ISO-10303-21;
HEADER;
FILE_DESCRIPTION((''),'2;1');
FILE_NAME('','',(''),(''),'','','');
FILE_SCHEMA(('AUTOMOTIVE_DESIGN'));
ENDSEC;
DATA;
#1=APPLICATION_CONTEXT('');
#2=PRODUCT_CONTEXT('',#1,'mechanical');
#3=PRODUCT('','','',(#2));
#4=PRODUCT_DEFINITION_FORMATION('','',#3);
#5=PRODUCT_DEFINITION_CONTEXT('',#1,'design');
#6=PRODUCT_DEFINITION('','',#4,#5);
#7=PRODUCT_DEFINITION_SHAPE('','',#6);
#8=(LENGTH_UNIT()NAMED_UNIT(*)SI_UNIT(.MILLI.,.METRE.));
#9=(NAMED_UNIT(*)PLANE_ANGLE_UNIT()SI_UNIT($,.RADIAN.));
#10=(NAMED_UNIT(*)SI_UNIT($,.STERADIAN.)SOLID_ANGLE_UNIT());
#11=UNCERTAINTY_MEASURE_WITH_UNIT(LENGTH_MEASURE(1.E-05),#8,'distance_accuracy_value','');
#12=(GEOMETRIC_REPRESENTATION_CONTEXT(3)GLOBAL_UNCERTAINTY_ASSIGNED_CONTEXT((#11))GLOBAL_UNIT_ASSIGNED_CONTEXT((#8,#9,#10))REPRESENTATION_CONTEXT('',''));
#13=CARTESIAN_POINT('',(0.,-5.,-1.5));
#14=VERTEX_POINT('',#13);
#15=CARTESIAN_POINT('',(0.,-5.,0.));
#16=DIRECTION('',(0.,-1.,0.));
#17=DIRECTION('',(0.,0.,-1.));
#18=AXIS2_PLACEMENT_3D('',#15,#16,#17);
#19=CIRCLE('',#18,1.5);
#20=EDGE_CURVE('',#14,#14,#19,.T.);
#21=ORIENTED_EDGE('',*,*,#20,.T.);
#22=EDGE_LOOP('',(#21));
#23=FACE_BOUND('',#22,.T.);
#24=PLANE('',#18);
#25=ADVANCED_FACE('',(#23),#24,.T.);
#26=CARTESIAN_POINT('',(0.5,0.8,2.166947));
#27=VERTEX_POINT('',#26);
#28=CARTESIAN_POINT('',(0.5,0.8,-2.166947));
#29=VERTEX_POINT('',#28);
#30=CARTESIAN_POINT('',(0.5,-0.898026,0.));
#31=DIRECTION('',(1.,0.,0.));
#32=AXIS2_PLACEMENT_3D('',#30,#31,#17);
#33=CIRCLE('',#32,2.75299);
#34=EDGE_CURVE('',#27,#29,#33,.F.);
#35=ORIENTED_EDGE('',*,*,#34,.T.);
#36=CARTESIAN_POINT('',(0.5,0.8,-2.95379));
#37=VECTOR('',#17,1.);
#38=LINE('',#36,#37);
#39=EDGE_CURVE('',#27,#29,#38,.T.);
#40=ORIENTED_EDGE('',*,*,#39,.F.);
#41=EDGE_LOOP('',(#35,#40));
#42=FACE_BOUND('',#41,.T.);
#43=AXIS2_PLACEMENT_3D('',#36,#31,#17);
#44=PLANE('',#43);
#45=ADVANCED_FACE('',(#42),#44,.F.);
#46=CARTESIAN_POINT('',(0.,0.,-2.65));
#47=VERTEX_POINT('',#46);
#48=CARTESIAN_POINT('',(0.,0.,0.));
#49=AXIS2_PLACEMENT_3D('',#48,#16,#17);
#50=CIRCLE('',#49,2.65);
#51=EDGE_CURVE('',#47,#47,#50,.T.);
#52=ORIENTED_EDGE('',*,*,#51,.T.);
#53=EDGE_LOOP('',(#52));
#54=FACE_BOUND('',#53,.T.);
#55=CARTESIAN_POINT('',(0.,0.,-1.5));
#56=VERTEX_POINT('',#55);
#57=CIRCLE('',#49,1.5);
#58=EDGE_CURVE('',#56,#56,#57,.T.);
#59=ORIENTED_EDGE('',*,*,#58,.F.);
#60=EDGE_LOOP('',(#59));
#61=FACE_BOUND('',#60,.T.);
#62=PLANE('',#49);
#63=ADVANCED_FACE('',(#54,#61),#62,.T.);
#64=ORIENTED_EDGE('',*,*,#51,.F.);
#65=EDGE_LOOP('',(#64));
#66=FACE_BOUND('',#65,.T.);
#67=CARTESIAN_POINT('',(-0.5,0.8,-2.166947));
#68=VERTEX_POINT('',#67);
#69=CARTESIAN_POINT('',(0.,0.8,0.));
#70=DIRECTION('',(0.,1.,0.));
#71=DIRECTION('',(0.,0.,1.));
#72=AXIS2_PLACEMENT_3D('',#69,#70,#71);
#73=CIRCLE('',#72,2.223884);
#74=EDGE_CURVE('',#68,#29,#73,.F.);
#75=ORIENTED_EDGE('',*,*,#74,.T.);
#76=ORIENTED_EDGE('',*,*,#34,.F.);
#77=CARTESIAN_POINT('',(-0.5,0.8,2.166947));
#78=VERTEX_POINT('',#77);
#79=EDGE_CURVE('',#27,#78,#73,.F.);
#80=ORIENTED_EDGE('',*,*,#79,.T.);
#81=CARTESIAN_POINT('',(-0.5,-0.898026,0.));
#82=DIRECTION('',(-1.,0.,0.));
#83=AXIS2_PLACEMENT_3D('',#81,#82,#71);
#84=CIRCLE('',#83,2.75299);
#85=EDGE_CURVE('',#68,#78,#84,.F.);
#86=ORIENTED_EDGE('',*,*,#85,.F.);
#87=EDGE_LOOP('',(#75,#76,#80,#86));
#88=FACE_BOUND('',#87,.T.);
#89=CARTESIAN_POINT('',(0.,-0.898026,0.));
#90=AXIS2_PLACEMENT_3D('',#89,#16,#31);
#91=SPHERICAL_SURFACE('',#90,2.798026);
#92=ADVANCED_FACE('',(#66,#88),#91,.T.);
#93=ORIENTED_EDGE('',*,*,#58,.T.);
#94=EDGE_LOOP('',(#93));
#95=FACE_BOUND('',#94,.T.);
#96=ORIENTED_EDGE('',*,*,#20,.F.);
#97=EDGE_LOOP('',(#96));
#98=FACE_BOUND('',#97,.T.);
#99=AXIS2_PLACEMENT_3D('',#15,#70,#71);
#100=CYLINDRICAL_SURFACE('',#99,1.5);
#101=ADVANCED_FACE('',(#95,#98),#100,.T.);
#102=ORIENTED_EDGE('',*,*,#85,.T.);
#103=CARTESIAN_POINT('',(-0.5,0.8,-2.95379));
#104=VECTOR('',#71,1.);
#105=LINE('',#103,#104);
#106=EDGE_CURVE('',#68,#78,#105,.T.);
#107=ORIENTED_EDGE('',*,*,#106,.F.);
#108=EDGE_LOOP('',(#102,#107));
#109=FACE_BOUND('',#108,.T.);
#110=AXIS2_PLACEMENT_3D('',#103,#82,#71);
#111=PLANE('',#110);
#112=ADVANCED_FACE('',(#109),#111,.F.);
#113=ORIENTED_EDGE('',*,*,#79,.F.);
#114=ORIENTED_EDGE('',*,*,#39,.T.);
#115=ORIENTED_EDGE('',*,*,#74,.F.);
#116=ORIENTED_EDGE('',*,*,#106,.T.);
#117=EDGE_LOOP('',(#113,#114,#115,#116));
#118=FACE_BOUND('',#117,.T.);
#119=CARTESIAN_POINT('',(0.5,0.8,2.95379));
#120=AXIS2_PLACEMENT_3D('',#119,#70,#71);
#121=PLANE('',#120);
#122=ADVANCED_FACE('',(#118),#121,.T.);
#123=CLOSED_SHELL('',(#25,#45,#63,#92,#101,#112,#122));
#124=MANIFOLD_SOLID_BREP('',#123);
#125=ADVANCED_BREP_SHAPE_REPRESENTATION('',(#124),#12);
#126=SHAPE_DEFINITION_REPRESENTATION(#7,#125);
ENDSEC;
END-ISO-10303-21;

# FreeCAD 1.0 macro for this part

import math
import FreeCAD as App
import Part
import Sketcher
from FreeCAD import Vector
Q = App.Units.Quantity


def add_polygon(sketch, points):
    """Adds a closed chain of lines whose ends are joined by coincident constraints."""
    first, n = sketch.GeometryCount, len(points)
    for a, b in zip(points, points[1:] + points[:1]):
        sketch.addGeometry(Part.LineSegment(App.Vector(*a, 0), App.Vector(*b, 0)), False)
    for i in range(n):
        sketch.addConstraint(Sketcher.Constraint("Coincident", first + i, 2, first + (i + 1) % n, 1))

doc = App.newDocument("Part")
body = doc.addObject("PartDesign::Body", "Body")

# Sketch on XY plane
sketch1 = doc.addObject("Sketcher::SketchObject", "Sketch")
body.addObject(sketch1)
sketch1.AttachmentSupport = (doc.XY_Plane, [""])
sketch1.MapMode = "FlatFace"
sketch1.addGeometry([
    Part.LineSegment(Vector(0, 0, 0), Vector(2.6, 0, 0)),
    Part.ArcOfCircle(Part.Circle(Vector(0, -0.9, 0), Vector(0, 0, 1), 2.8), math.radians(19), math.radians(90)),
    Part.LineSegment(Vector(0, 1.9, 0), Vector(0, 0, 0)),
], False)
sketch1.addConstraint([
    Sketcher.Constraint("Coincident", 0, 2, 1, 1),
    Sketcher.Constraint("Coincident", 1, 2, 2, 1),
    Sketcher.Constraint("Coincident", 2, 2, 0, 1),
    Sketcher.Constraint("Horizontal", 0),
    Sketcher.Constraint("Vertical", 2),
    Sketcher.Constraint("Coincident", 2, 2, -1, 1),
    Sketcher.Constraint("PointOnObject", 1, 3, -2),
    Sketcher.Constraint("DistanceY", 2, 2, 2, 1, Q("1.9 mm")),
    Sketcher.Constraint("DistanceX", 0, 1, 0, 2, Q("2.65 mm")),
])
revolution = doc.addObject("PartDesign::Revolution", "Revolution")
body.addObject(revolution)
revolution.Profile = sketch1
revolution.ReferenceAxis = (sketch1, ["V_Axis"])
revolution.Angle = 360

# Sketch on XZ plane
sketch2 = doc.addObject("Sketcher::SketchObject", "Sketch001")
body.addObject(sketch2)
sketch2.AttachmentSupport = (doc.XZ_Plane, [""])
sketch2.MapMode = "FlatFace"
sketch2.AttachmentOffset = App.Placement(Vector(0, 0, -2), App.Rotation())
add_polygon(sketch2, [(-0.5, -3), (-0.5, 3), (0.5, 3), (0.5, -3)])  # lines 0-3
sketch2.addConstraint([
    Sketcher.Constraint("Vertical", 0),
    Sketcher.Constraint("Horizontal", 1),
    Sketcher.Constraint("Vertical", 2),
    Sketcher.Constraint("Horizontal", 3),
    Sketcher.Constraint("Symmetric", 0, 2, 2, 2, -1, 1),
    Sketcher.Constraint("DistanceX", 1, 1, 1, 2, Q("1 mm")),
    Sketcher.Constraint("DistanceY", 0, 1, 0, 2, Q("5.907581 mm")),
])
pocket1 = doc.addObject("PartDesign::Pocket", "Pocket")
body.addObject(pocket1)
pocket1.Profile = sketch2
pocket1.Length = 1.2
pocket1.Reversed = True

# Sketch on XZ plane
sketch3 = doc.addObject("Sketcher::SketchObject", "Sketch002")
body.addObject(sketch3)
sketch3.AttachmentSupport = (doc.XZ_Plane, [""])
sketch3.MapMode = "FlatFace"
sketch3.addGeometry(Part.Circle(Vector(0, 0, 0), Vector(0, 0, 1), 1.5), False)
sketch3.addConstraint([
    Sketcher.Constraint("Coincident", 0, 3, -1, 1),
    Sketcher.Constraint("Diameter", 0, Q("3 mm")),
])
pad1 = doc.addObject("PartDesign::Pad", "Pad")
body.addObject(pad1)
pad1.Profile = sketch3
pad1.Length = 5

doc.recompute()
